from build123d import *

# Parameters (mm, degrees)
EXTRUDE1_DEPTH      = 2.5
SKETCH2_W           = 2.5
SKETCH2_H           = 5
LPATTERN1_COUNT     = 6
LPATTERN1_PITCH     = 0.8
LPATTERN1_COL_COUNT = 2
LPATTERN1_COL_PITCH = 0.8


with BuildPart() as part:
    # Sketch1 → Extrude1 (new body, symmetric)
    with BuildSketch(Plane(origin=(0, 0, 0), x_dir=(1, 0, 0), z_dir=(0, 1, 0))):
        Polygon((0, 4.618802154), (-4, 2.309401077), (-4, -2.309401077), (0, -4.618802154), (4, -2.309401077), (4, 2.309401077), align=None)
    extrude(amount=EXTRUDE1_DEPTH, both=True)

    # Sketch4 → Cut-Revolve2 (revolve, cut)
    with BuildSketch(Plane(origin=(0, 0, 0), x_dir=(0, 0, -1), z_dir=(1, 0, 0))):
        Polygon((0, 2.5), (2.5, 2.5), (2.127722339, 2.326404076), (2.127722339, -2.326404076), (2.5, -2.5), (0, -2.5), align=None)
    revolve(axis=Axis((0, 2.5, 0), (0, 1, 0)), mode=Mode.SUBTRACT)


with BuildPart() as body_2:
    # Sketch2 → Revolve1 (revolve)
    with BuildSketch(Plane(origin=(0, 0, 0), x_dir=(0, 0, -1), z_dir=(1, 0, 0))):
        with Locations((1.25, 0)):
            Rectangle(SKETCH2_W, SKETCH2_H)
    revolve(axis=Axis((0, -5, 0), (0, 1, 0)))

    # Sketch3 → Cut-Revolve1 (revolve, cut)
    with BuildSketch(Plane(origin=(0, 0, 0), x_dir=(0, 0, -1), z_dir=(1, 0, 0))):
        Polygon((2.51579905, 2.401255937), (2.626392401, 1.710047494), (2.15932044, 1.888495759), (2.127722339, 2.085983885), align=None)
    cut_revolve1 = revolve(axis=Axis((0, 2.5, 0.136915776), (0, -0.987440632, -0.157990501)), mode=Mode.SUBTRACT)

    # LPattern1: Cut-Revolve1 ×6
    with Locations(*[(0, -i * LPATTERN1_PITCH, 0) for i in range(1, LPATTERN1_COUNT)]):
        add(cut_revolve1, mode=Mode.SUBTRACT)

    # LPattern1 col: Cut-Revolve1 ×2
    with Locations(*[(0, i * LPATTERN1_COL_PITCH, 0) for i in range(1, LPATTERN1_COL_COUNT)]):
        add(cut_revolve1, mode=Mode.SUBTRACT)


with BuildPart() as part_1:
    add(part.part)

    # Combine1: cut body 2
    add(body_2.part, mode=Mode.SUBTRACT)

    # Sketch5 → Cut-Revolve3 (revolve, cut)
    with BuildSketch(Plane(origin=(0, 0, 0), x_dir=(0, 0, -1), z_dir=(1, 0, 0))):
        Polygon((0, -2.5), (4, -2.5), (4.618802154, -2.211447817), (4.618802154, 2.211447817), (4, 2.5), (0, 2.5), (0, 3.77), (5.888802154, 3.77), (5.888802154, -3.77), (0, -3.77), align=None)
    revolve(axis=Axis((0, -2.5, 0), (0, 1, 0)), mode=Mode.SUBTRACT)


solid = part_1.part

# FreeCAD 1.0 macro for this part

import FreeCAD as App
import Part
import Sketcher
from FreeCAD import Vector
Q = App.Units.Quantity

doc = App.newDocument("Part")
body = doc.addObject("PartDesign::Body", "Body")

sketch1 = doc.addObject("Sketcher::SketchObject", "Sketch")
body.addObject(sketch1)
sketch1.AttachmentSupport = (doc.XZ_Plane, [""])
sketch1.MapMode = "FlatFace"
sketch1.addGeometry([
    Part.LineSegment(Vector(0, -4.6, 0), Vector(-4, -2.3, 0)),
    Part.LineSegment(Vector(-4, -2.3, 0), Vector(-4, 2.3, 0)),
    Part.LineSegment(Vector(-4, 2.3, 0), Vector(0, 4.6, 0)),
    Part.LineSegment(Vector(0, 4.6, 0), Vector(4, 2.3, 0)),
    Part.LineSegment(Vector(4, 2.3, 0), Vector(4, -2.3, 0)),
    Part.LineSegment(Vector(4, -2.3, 0), Vector(0, -4.6, 0)),
], False)
sketch1.addConstraint([
    Sketcher.Constraint("Coincident", 0, 2, 1, 1),
    Sketcher.Constraint("Coincident", 1, 2, 2, 1),
    Sketcher.Constraint("Coincident", 2, 2, 3, 1),
    Sketcher.Constraint("Coincident", 3, 2, 4, 1),
    Sketcher.Constraint("Coincident", 4, 2, 5, 1),
    Sketcher.Constraint("Coincident", 5, 2, 0, 1),
    Sketcher.Constraint("Vertical", 1),
    Sketcher.Constraint("Vertical", 4),
    Sketcher.Constraint("Symmetric", 0, 2, 3, 2, -1, 1),
    Sketcher.Constraint("Symmetric", 2, 2, 5, 2, -1, 1),
    Sketcher.Constraint("PointOnObject", 2, 2, -2),
    Sketcher.Constraint("Parallel", 2, 5),
    Sketcher.Constraint("Horizontal", 1, 2, 3, 2),
    Sketcher.Constraint("Angle", 0, Q("150 deg")),
    Sketcher.Constraint("DistanceX", 0, 2, -1, 1, Q("4 mm")),
    Sketcher.Constraint("DistanceY", 0, 2, -1, 1, Q("2.309401 mm")),
])
pad1 = doc.addObject("PartDesign::Pad", "Pad")
body.addObject(pad1)
pad1.Profile = sketch1
pad1.Length = 5
pad1.Midplane = True

sketch2 = doc.addObject("Sketcher::SketchObject", "Sketch001")
body.addObject(sketch2)
sketch2.AttachmentSupport = (doc.YZ_Plane, [""])
sketch2.MapMode = "FlatFace"
sketch2.addGeometry([
    Part.LineSegment(Vector(2.5, -2.5, 0), Vector(2.5, 0, 0)),
    Part.LineSegment(Vector(2.5, 0, 0), Vector(-2.5, 0, 0)),
    Part.LineSegment(Vector(-2.5, 0, 0), Vector(-2.5, -2.5, 0)),
    Part.LineSegment(Vector(-2.5, -2.5, 0), Vector(-2.33, -2.13, 0)),
    Part.LineSegment(Vector(-2.33, -2.13, 0), Vector(2.33, -2.13, 0)),
    Part.LineSegment(Vector(2.33, -2.13, 0), Vector(2.5, -2.5, 0)),
], False)
sketch2.addConstraint([
    Sketcher.Constraint("Coincident", 0, 2, 1, 1),
    Sketcher.Constraint("Coincident", 1, 2, 2, 1),
    Sketcher.Constraint("Coincident", 2, 2, 3, 1),
    Sketcher.Constraint("Coincident", 3, 2, 4, 1),
    Sketcher.Constraint("Coincident", 4, 2, 5, 1),
    Sketcher.Constraint("Coincident", 5, 2, 0, 1),
    Sketcher.Constraint("Vertical", 0),
    Sketcher.Constraint("Horizontal", 1),
    Sketcher.Constraint("Vertical", 2),
    Sketcher.Constraint("Horizontal", 4),
    Sketcher.Constraint("Symmetric", 0, 2, 1, 2, -1, 1),
    Sketcher.Constraint("Horizontal", 2, 2, 5, 2),
    Sketcher.Constraint("Equal", 3, 5),
    Sketcher.Constraint("DistanceX", 1, 2, 1, 1, Q("5 mm")),
    Sketcher.Constraint("Angle", 3, Q("65 deg")),
    Sketcher.Constraint("DistanceY", 0, 1, 0, 2, Q("2.5 mm")),
    Sketcher.Constraint("DistanceX", 4, 1, 4, 2, Q("4.652808 mm")),
])
groove = doc.addObject("PartDesign::Groove", "Groove")
body.addObject(groove)
groove.Profile = sketch2
groove.ReferenceAxis = (sketch2, ["H_Axis"])
groove.Angle = 360
body2 = doc.addObject("PartDesign::Body", "Body001")

sketch3 = doc.addObject("Sketcher::SketchObject", "Sketch002")
body2.addObject(sketch3)
sketch3.AttachmentSupport = (doc.getObject("YZ_Plane001"), [""])
sketch3.MapMode = "FlatFace"
sketch3.addGeometry([
    Part.LineSegment(Vector(2.5, 0, 0), Vector(-2.5, 0, 0)),
    Part.LineSegment(Vector(-2.5, 0, 0), Vector(-2.5, -2.5, 0)),
    Part.LineSegment(Vector(-2.5, -2.5, 0), Vector(2.5, -2.5, 0)),
    Part.LineSegment(Vector(2.5, -2.5, 0), Vector(2.5, 0, 0)),
], False)
sketch3.addConstraint([
    Sketcher.Constraint("Coincident", 0, 2, 1, 1),
    Sketcher.Constraint("Coincident", 1, 2, 2, 1),
    Sketcher.Constraint("Coincident", 2, 2, 3, 1),
    Sketcher.Constraint("Coincident", 3, 2, 0, 1),
    Sketcher.Constraint("Horizontal", 0),
    Sketcher.Constraint("Vertical", 1),
    Sketcher.Constraint("Horizontal", 2),
    Sketcher.Constraint("Vertical", 3),
    Sketcher.Constraint("Symmetric", 0, 2, 3, 2, -1, 1),
    Sketcher.Constraint("DistanceX", 0, 2, 0, 1, Q("5 mm")),
    Sketcher.Constraint("DistanceY", 1, 2, 1, 1, Q("2.5 mm")),
])
revolution = doc.addObject("PartDesign::Revolution", "Revolution")
body2.addObject(revolution)
revolution.Profile = sketch3
revolution.ReferenceAxis = (sketch3, ["H_Axis"])
revolution.Angle = 360

sketch4 = doc.addObject("Sketcher::SketchObject", "Sketch003")
body2.addObject(sketch4)
sketch4.AttachmentSupport = (doc.getObject("YZ_Plane001"), [""])
sketch4.MapMode = "FlatFace"
sketch4.addGeometry([
    Part.LineSegment(Vector(1.71, -2.63, 0), Vector(2.4, -2.52, 0)),
    Part.LineSegment(Vector(2.4, -2.52, 0), Vector(2.09, -2.13, 0)),
    Part.LineSegment(Vector(2.09, -2.13, 0), Vector(1.89, -2.16, 0)),
    Part.LineSegment(Vector(1.89, -2.16, 0), Vector(1.71, -2.63, 0)),
], False)
sketch4.addGeometry(Part.LineSegment(Vector(1.99, 0.06, 0), Vector(1.3, -0.06, 0)), True)
sketch4.addConstraint([
    Sketcher.Constraint("Coincident", 0, 2, 1, 1),
    Sketcher.Constraint("Coincident", 1, 2, 2, 1),
    Sketcher.Constraint("Coincident", 2, 2, 3, 1),
    Sketcher.Constraint("Coincident", 3, 2, 0, 1),
    Sketcher.Constraint("Parallel", 0, 2),
    Sketcher.Constraint("Parallel", 2, 4),
    Sketcher.Constraint("Equal", 1, 3),
    Sketcher.Constraint("Equal", 0, 4),
    Sketcher.Constraint("Distance", 0, Q("0.7 mm")),
    Sketcher.Constraint("Distance", 1, Q("0.5 mm")),
    Sketcher.Constraint("Distance", 2, Q("0.2 mm")),
    Sketcher.Constraint("DistanceY", 0, 2, -1, 1, Q("2.515799 mm")),
    Sketcher.Constraint("DistanceY", 2, 2, 1, 2, Q("0.031598 mm")),
    Sketcher.Constraint("DistanceX", -1, 1, 4, 1, Q("1.989881 mm")),
    Sketcher.Constraint("DistanceY", 1, 2, 4, 1, Q("2.183019 mm")),
    Sketcher.Constraint("DistanceX", 4, 2, 1, 2, Q("0.787312 mm")),
])
groove2 = doc.addObject("PartDesign::Groove", "Groove001")
body2.addObject(groove2)
groove2.Profile = sketch4
groove2.ReferenceAxis = (sketch4, ["Axis0"])
groove2.Angle = 360
doc.recompute()

linearpattern = doc.addObject("PartDesign::LinearPattern", "LinearPattern")
body2.addObject(linearpattern)
linearpattern.Originals = [groove2]
linearpattern.Direction = (doc.getObject("Y_Axis001"), [""])
linearpattern.Mode = "offset"
linearpattern.Offset = 0.8
linearpattern.Occurrences = 6
linearpattern.Reversed = True
body2.Tip = linearpattern
doc.recompute()

linearpattern2 = doc.addObject("PartDesign::LinearPattern", "LinearPattern001")
body2.addObject(linearpattern2)
linearpattern2.Originals = [groove2]
linearpattern2.Direction = (doc.getObject("Y_Axis001"), [""])
linearpattern2.Mode = "offset"
linearpattern2.Offset = 0.8
linearpattern2.Occurrences = 2
body2.Tip = linearpattern2
doc.recompute()

boolean = doc.addObject("PartDesign::Boolean", "Boolean")
body.addObject(boolean)
boolean.Type = "Cut"
boolean.addObjects([body2])

sketch5 = doc.addObject("Sketcher::SketchObject", "Sketch004")
body.addObject(sketch5)
sketch5.AttachmentSupport = (doc.YZ_Plane, [""])
sketch5.MapMode = "FlatFace"
sketch5.addGeometry([
    Part.LineSegment(Vector(-2.5, -4, 0), Vector(-2.5, 0, 0)),
    Part.LineSegment(Vector(-2.5, 0, 0), Vector(-3.8, 0, 0)),
    Part.LineSegment(Vector(-3.8, 0, 0), Vector(-3.8, -5.9, 0)),
    Part.LineSegment(Vector(-3.8, -5.9, 0), Vector(3.8, -5.9, 0)),
    Part.LineSegment(Vector(3.8, -5.9, 0), Vector(3.8, 0, 0)),
    Part.LineSegment(Vector(3.8, 0, 0), Vector(2.5, 0, 0)),
    Part.LineSegment(Vector(2.5, 0, 0), Vector(2.5, -4, 0)),
    Part.LineSegment(Vector(2.5, -4, 0), Vector(2.2, -4.6, 0)),
    Part.LineSegment(Vector(2.2, -4.6, 0), Vector(-2.2, -4.6, 0)),
    Part.LineSegment(Vector(-2.2, -4.6, 0), Vector(-2.5, -4, 0)),
], False)
sketch5.addConstraint([
    Sketcher.Constraint("Coincident", 0, 2, 1, 1),
    Sketcher.Constraint("Coincident", 1, 2, 2, 1),
    Sketcher.Constraint("Coincident", 2, 2, 3, 1),
    Sketcher.Constraint("Coincident", 3, 2, 4, 1),
    Sketcher.Constraint("Coincident", 4, 2, 5, 1),
    Sketcher.Constraint("Coincident", 5, 2, 6, 1),
    Sketcher.Constraint("Coincident", 6, 2, 7, 1),
    Sketcher.Constraint("Coincident", 7, 2, 8, 1),
    Sketcher.Constraint("Coincident", 8, 2, 9, 1),
    Sketcher.Constraint("Coincident", 9, 2, 0, 1),
    Sketcher.Constraint("Vertical", 0),
    Sketcher.Constraint("Horizontal", 1),
    Sketcher.Constraint("Vertical", 2),
    Sketcher.Constraint("Horizontal", 3),
    Sketcher.Constraint("Vertical", 4),
    Sketcher.Constraint("Horizontal", 5),
    Sketcher.Constraint("Vertical", 6),
    Sketcher.Constraint("Horizontal", 8),
    Sketcher.Constraint("Symmetric", 1, 2, 4, 2, -1, 1),
    Sketcher.Constraint("Symmetric", 0, 2, 5, 2, -2),
    Sketcher.Constraint("Horizontal", 6, 2, 9, 2),
    Sketcher.Constraint("Equal", 7, 9),
    Sketcher.Constraint("DistanceY", 0, 1, 0, 2, Q("4 mm")),
    Sketcher.Constraint("Angle", 7, Q("-115 deg")),
    Sketcher.Constraint("DistanceX", 0, 2, 5, 2, Q("5 mm")),
    Sketcher.Constraint("DistanceX", 1, 2, 1, 1, Q("1.27 mm")),
    Sketcher.Constraint("DistanceY", 3, 2, 7, 2, Q("1.27 mm")),
    Sketcher.Constraint("DistanceX", 8, 2, 8, 1, Q("4.422896 mm")),
])
groove3 = doc.addObject("PartDesign::Groove", "Groove002")
body.addObject(groove3)
groove3.Profile = sketch5
groove3.ReferenceAxis = (sketch5, ["H_Axis"])
groove3.Angle = 360

doc.recompute()
